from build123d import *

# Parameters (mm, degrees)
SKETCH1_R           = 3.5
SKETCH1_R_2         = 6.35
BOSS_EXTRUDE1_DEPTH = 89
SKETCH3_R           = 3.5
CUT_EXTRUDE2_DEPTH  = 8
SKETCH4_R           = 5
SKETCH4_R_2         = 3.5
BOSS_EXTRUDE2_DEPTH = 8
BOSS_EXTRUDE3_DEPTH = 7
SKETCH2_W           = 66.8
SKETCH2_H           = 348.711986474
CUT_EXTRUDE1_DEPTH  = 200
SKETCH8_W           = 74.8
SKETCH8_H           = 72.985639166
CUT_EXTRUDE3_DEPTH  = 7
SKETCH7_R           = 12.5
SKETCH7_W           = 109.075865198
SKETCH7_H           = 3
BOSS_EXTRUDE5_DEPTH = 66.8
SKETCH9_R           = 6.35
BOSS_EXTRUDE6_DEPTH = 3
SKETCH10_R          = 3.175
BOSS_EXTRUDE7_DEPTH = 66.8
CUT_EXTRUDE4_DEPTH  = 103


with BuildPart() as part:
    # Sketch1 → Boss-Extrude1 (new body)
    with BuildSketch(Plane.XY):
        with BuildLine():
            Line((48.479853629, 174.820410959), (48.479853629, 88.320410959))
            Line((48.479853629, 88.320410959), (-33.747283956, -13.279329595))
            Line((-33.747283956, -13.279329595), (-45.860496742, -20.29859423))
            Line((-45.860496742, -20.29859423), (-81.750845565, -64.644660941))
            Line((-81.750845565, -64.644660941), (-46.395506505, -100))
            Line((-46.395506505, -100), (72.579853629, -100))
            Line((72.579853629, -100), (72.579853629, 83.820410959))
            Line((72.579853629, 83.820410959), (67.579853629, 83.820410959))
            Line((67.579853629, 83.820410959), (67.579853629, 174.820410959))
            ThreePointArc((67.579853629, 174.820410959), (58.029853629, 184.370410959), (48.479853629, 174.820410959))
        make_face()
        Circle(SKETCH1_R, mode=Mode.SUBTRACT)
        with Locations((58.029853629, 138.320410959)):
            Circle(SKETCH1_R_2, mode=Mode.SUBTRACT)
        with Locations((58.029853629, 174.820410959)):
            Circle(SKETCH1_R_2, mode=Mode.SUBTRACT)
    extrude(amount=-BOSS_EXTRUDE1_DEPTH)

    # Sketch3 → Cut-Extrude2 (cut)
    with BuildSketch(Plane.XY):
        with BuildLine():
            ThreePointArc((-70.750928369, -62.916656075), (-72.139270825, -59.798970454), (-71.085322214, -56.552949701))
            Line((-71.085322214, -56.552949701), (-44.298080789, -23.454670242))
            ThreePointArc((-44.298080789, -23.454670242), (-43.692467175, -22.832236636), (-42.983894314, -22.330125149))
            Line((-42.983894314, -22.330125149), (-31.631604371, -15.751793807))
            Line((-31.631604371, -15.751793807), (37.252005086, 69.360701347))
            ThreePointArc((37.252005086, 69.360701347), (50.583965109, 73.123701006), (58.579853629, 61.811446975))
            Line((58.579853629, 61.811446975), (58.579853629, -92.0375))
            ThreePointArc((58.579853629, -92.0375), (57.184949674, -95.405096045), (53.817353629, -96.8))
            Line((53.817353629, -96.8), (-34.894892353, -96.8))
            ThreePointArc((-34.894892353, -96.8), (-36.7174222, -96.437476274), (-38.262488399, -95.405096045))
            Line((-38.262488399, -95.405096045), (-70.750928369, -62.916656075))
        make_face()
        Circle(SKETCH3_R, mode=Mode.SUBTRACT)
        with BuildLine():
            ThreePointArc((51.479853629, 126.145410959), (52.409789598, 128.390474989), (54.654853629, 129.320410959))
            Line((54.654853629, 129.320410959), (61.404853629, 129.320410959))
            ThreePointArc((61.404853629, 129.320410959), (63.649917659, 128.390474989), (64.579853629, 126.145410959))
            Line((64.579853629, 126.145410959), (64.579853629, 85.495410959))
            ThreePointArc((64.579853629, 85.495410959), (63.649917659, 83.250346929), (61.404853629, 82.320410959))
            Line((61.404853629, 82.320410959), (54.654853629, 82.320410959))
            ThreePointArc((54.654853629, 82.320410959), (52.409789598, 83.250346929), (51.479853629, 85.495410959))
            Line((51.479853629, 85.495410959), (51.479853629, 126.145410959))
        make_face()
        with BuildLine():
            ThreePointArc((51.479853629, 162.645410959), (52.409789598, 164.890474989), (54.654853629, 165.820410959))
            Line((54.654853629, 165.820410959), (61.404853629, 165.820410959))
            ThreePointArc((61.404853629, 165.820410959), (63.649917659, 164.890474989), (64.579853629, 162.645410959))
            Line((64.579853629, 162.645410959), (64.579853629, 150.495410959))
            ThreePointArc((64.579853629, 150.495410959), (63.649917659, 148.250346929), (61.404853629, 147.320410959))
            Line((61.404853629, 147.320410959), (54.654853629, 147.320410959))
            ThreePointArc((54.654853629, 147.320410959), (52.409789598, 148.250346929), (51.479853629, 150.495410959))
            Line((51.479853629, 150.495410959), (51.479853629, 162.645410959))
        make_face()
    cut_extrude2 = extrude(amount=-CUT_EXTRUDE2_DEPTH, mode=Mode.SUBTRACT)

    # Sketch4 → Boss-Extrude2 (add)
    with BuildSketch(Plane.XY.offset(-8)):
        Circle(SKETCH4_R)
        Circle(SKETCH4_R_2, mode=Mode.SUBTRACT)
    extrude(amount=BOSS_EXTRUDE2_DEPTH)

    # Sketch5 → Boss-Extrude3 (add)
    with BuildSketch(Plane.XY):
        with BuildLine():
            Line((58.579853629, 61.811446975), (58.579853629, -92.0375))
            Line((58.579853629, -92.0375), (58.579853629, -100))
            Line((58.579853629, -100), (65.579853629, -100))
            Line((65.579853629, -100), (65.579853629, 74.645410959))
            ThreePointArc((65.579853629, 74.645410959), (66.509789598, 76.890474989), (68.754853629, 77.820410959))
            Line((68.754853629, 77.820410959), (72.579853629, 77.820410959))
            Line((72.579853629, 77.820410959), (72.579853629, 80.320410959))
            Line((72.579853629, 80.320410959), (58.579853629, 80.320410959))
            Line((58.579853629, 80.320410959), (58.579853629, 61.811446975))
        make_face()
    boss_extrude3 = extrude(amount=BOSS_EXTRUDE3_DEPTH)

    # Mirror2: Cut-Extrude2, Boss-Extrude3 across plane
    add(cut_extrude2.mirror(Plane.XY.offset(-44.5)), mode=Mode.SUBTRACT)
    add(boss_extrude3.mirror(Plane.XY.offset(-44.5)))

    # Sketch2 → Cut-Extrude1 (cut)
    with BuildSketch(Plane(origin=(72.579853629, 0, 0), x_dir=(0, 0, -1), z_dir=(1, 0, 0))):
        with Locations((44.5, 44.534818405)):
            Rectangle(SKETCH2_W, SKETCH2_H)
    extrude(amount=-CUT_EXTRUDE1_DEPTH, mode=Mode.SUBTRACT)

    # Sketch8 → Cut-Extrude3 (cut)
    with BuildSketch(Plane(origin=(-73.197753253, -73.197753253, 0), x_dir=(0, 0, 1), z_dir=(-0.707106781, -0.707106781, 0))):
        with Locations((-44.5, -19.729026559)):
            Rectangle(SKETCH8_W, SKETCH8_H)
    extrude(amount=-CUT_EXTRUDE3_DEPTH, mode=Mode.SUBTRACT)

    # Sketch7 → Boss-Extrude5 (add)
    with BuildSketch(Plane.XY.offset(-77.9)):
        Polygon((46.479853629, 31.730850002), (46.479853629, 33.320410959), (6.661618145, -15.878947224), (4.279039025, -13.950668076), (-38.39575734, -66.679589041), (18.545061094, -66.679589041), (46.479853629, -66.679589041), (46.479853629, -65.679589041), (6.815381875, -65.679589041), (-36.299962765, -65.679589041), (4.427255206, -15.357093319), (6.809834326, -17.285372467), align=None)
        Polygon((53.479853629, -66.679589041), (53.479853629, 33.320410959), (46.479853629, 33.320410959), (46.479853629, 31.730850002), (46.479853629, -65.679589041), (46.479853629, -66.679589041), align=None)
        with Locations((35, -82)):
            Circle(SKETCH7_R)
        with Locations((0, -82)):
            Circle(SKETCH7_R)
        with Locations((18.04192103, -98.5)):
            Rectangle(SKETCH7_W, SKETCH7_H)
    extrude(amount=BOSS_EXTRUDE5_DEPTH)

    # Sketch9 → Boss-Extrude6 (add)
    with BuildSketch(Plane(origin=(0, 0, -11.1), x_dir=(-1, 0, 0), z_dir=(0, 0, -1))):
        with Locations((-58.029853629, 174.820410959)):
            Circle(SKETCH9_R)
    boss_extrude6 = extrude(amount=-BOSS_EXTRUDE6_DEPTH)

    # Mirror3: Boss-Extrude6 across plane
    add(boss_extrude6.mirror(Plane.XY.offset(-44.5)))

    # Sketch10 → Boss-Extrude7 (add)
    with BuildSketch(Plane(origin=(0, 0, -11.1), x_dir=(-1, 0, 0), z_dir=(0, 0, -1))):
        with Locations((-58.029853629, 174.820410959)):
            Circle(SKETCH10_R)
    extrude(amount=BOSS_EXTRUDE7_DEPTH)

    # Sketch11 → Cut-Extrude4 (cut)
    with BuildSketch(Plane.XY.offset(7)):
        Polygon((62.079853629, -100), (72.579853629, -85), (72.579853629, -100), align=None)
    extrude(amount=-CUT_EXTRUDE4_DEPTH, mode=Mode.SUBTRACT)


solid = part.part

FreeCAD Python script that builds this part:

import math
import FreeCAD as App
import Part
import Sketcher
from FreeCAD import Vector
Q = App.Units.Quantity

doc = App.newDocument("Part")
body = doc.addObject("PartDesign::Body", "Body")
body.AllowCompound = True

# Sketch on XY plane
sketch1 = doc.addObject("Sketcher::SketchObject", "Sketch")
body.addObject(sketch1)
sketch1.AttachmentSupport = (doc.XY_Plane, [""])
sketch1.MapMode = "FlatFace"
sketch1.addGeometry([
    Part.LineSegment(Vector(48.5, 174.8, 0), Vector(48.5, 88.3, 0)),  # 0
    Part.LineSegment(Vector(48.5, 88.3, 0), Vector(-33.7, -13.3, 0)),  # 1
    Part.LineSegment(Vector(-33.7, -13.3, 0), Vector(-45.9, -20.3, 0)),  # 2
    Part.LineSegment(Vector(-45.9, -20.3, 0), Vector(-81.8, -64.6, 0)),  # 3
    Part.LineSegment(Vector(-81.8, -64.6, 0), Vector(-46.4, -100, 0)),  # 4
    Part.LineSegment(Vector(-46.4, -100, 0), Vector(72.6, -100, 0)),  # 5
    Part.LineSegment(Vector(72.6, -100, 0), Vector(72.6, 83.8, 0)),  # 6
    Part.LineSegment(Vector(72.6, 83.8, 0), Vector(67.6, 83.8, 0)),  # 7
    Part.LineSegment(Vector(67.6, 83.8, 0), Vector(67.6, 174.8, 0)),  # 8
    Part.ArcOfCircle(Part.Circle(Vector(58, 174.8, 0), Vector(0, 0, 1), 9.6), math.radians(0), math.radians(180)),  # 9
    Part.Circle(Vector(0, 0, 0), Vector(0, 0, 1), 3.5),  # 10
    Part.Circle(Vector(58, 138.3, 0), Vector(0, 0, 1), 6.3),  # 11
    Part.Circle(Vector(58, 174.8, 0), Vector(0, 0, 1), 6.3),  # 12
], False)
sketch1.addConstraint([
    Sketcher.Constraint("Coincident", 0, 2, 1, 1),
    Sketcher.Constraint("Coincident", 1, 2, 2, 1),
    Sketcher.Constraint("Coincident", 2, 2, 3, 1),
    Sketcher.Constraint("Coincident", 3, 2, 4, 1),
    Sketcher.Constraint("Coincident", 4, 2, 5, 1),
    Sketcher.Constraint("Coincident", 5, 2, 6, 1),
    Sketcher.Constraint("Coincident", 6, 2, 7, 1),
    Sketcher.Constraint("Coincident", 7, 2, 8, 1),
    Sketcher.Constraint("Tangent", 8, 2, 9, 1),
    Sketcher.Constraint("Tangent", 9, 2, 0, 1),
    Sketcher.Constraint("Vertical", 0),
    Sketcher.Constraint("Horizontal", 5),
    Sketcher.Constraint("Vertical", 6),
    Sketcher.Constraint("Horizontal", 7),
    Sketcher.Constraint("Vertical", 8),
    Sketcher.Constraint("Coincident", 10, 3, -1, 1),
    Sketcher.Constraint("Coincident", 12, 3, 9, 3),
    Sketcher.Constraint("Equal", 11, 12),
    Sketcher.Constraint("Parallel", 1, 3),
    Sketcher.Constraint("Vertical", 9, 3, 11, 3),
    Sketcher.Constraint("Diameter", 10, 7.0),
    Sketcher.Constraint("Diameter", 11, 12.7),
    Sketcher.Constraint("DistanceX", 7, 2, 7, 1, 5.0),
    Sketcher.Constraint("DistanceY", 8, 1, 8, 2, 91.0),
    Sketcher.Constraint("Angle", 4, Q("-45 deg")),
    Sketcher.Constraint("Radius", 9, 9.55),
    Sketcher.Constraint("Distance", 2, 14.0),
    Sketcher.Constraint("Distance", 4, 50.0),
    Sketcher.Constraint("DistanceY", 0, 2, 0, 1, 86.5),
    Sketcher.Constraint("DistanceY", 4, 2, -1, 1, 100.0),
    Sketcher.Constraint("DistanceY", 0, 2, 11, 3, 50.0),
    Sketcher.Constraint("DistanceX", 5, 1, 5, 2, 118.97536),
    Sketcher.Constraint("DistanceY", 6, 1, 6, 2, 183.820411),
    Sketcher.Constraint("DistanceY", 1, 2, -1, 1, 13.27933),
    Sketcher.Constraint("DistanceX", 2, 2, 0, 2, 94.34035),
    Sketcher.Constraint("DistanceX", -1, 1, 9, 3, 58.029854),
])
pad1 = doc.addObject("PartDesign::Pad", "Pad")
body.addObject(pad1)
pad1.Profile = sketch1
pad1.Length = 89
pad1.Reversed = True

# Sketch on XY plane
sketch2 = doc.addObject("Sketcher::SketchObject", "Sketch001")
body.addObject(sketch2)
sketch2.AttachmentSupport = (doc.XY_Plane, [""])
sketch2.MapMode = "FlatFace"
sketch2.addGeometry([
    Part.ArcOfCircle(Part.Circle(Vector(-67.4, -59.5, 0), Vector(0, 0, 1), 4.8), math.radians(141), math.radians(225)),  # 0
    Part.LineSegment(Vector(-70.8, -62.9, 0), Vector(-38.3, -95.4, 0)),  # 1
    Part.ArcOfCircle(Part.Circle(Vector(-34.9, -92, 0), Vector(0, 0, 1), 4.8), math.radians(-135), math.radians(-90)),  # 2
    Part.LineSegment(Vector(-34.9, -96.8, 0), Vector(53.8, -96.8, 0)),  # 3
    Part.ArcOfCircle(Part.Circle(Vector(53.8, -92, 0), Vector(0, 0, 1), 4.8), math.radians(-90), math.radians(0)),  # 4
    Part.LineSegment(Vector(58.6, -92, 0), Vector(58.6, 61.8, 0)),  # 5
    Part.ArcOfCircle(Part.Circle(Vector(46.6, 61.8, 0), Vector(0, 0, 1), 12), math.radians(0), math.radians(141)),  # 6
    Part.LineSegment(Vector(37.3, 69.4, 0), Vector(-31.6, -15.8, 0)),  # 7
    Part.LineSegment(Vector(-31.6, -15.8, 0), Vector(-43, -22.3, 0)),  # 8
    Part.ArcOfCircle(Part.Circle(Vector(-40.6, -26.5, 0), Vector(0, 0, 1), 4.8), math.radians(120), math.radians(141)),  # 9
    Part.LineSegment(Vector(-44.3, -23.5, 0), Vector(-71.1, -56.6, 0)),  # 10
    Part.Circle(Vector(0, 0, 0), Vector(0, 0, 1), 3.5),  # 11
    Part.ArcOfCircle(Part.Circle(Vector(54.7, 126.1, 0), Vector(0, 0, 1), 3.2), math.radians(90), math.radians(180)),  # 12
    Part.LineSegment(Vector(51.5, 126.1, 0), Vector(51.5, 85.5, 0)),  # 13
    Part.ArcOfCircle(Part.Circle(Vector(54.7, 85.5, 0), Vector(0, 0, 1), 3.2), math.radians(180), math.radians(270)),  # 14
    Part.LineSegment(Vector(54.7, 82.3, 0), Vector(61.4, 82.3, 0)),  # 15
    Part.ArcOfCircle(Part.Circle(Vector(61.4, 85.5, 0), Vector(0, 0, 1), 3.2), math.radians(-90), math.radians(0)),  # 16
    Part.LineSegment(Vector(64.6, 85.5, 0), Vector(64.6, 126.1, 0)),  # 17
    Part.ArcOfCircle(Part.Circle(Vector(61.4, 126.1, 0), Vector(0, 0, 1), 3.2), math.radians(0), math.radians(90)),  # 18
    Part.LineSegment(Vector(61.4, 129.3, 0), Vector(54.7, 129.3, 0)),  # 19
    Part.ArcOfCircle(Part.Circle(Vector(54.7, 162.6, 0), Vector(0, 0, 1), 3.2), math.radians(90), math.radians(180)),  # 20
    Part.LineSegment(Vector(51.5, 162.6, 0), Vector(51.5, 150.5, 0)),  # 21
    Part.ArcOfCircle(Part.Circle(Vector(54.7, 150.5, 0), Vector(0, 0, 1), 3.2), math.radians(180), math.radians(270)),  # 22
    Part.LineSegment(Vector(54.7, 147.3, 0), Vector(61.4, 147.3, 0)),  # 23
    Part.ArcOfCircle(Part.Circle(Vector(61.4, 150.5, 0), Vector(0, 0, 1), 3.2), math.radians(-90), math.radians(0)),  # 24
    Part.LineSegment(Vector(64.6, 150.5, 0), Vector(64.6, 162.6, 0)),  # 25
    Part.ArcOfCircle(Part.Circle(Vector(61.4, 162.6, 0), Vector(0, 0, 1), 3.2), math.radians(0), math.radians(90)),  # 26
    Part.LineSegment(Vector(61.4, 165.8, 0), Vector(54.7, 165.8, 0)),  # 27
], False)
sketch2.addConstraint([
    Sketcher.Constraint("Tangent", 0, 2, 1, 1),
    Sketcher.Constraint("Tangent", 1, 2, 2, 1),
    Sketcher.Constraint("Tangent", 2, 2, 3, 1),
    Sketcher.Constraint("Tangent", 3, 2, 4, 1),
    Sketcher.Constraint("Tangent", 4, 2, 5, 1),
    Sketcher.Constraint("Tangent", 5, 2, 6, 1),
    Sketcher.Constraint("Tangent", 6, 2, 7, 1),
    Sketcher.Constraint("Coincident", 7, 2, 8, 1),
    Sketcher.Constraint("Tangent", 8, 2, 9, 1),
    Sketcher.Constraint("Tangent", 9, 2, 10, 1),
    Sketcher.Constraint("Tangent", 10, 2, 0, 1),
    Sketcher.Constraint("Tangent", 12, 2, 13, 1),
    Sketcher.Constraint("Tangent", 13, 2, 14, 1),
    Sketcher.Constraint("Tangent", 14, 2, 15, 1),
    Sketcher.Constraint("Tangent", 15, 2, 16, 1),
    Sketcher.Constraint("Tangent", 16, 2, 17, 1),
    Sketcher.Constraint("Tangent", 17, 2, 18, 1),
    Sketcher.Constraint("Tangent", 18, 2, 19, 1),
    Sketcher.Constraint("Tangent", 19, 2, 12, 1),
    Sketcher.Constraint("Tangent", 20, 2, 21, 1),
    Sketcher.Constraint("Tangent", 21, 2, 22, 1),
    Sketcher.Constraint("Tangent", 22, 2, 23, 1),
    Sketcher.Constraint("Tangent", 23, 2, 24, 1),
    Sketcher.Constraint("Tangent", 24, 2, 25, 1),
    Sketcher.Constraint("Tangent", 25, 2, 26, 1),
    Sketcher.Constraint("Tangent", 26, 2, 27, 1),
    Sketcher.Constraint("Tangent", 27, 2, 20, 1),
    Sketcher.Constraint("Horizontal", 3),
    Sketcher.Constraint("Vertical", 5),
    Sketcher.Constraint("Vertical", 13),
    Sketcher.Constraint("Horizontal", 15),
    Sketcher.Constraint("Vertical", 17),
    Sketcher.Constraint("Horizontal", 19),
    Sketcher.Constraint("Vertical", 21),
    Sketcher.Constraint("Horizontal", 23),
    Sketcher.Constraint("Vertical", 25),
    Sketcher.Constraint("Horizontal", 27),
    Sketcher.Constraint("Coincident", 11, 3, -1, 1),
    Sketcher.Constraint("Equal", 0, 2),
    Sketcher.Constraint("Equal", 2, 4),
    Sketcher.Constraint("Equal", 4, 9),
    Sketcher.Constraint("Equal", 12, 14),
    Sketcher.Constraint("Equal", 14, 16),
    Sketcher.Constraint("Equal", 16, 18),
    Sketcher.Constraint("Equal", 18, 20),
    Sketcher.Constraint("Equal", 20, 22),
    Sketcher.Constraint("Equal", 22, 24),
    Sketcher.Constraint("Equal", 24, 26),
    Sketcher.Constraint("Parallel", 7, 10),
    Sketcher.Constraint("Vertical", 14, 3, 20, 3),
    Sketcher.Constraint("Vertical", 18, 3, 24, 3),
    Sketcher.Constraint("Diameter", 11, 7.0),
    Sketcher.Constraint("Radius", 6, 12.0),
    Sketcher.Constraint("Angle", 1, Q("-45 deg")),
    Sketcher.Constraint("Radius", 12, 3.175),
    Sketcher.Constraint("DistanceY", 14, 3, 22, 3, 65.0),
    Sketcher.Constraint("DistanceX", 15, 1, 15, 2, 6.75),
    Sketcher.Constraint("DistanceY", 13, 2, 13, 1, 40.65),
    Sketcher.Constraint("DistanceY", 21, 2, 21, 1, 12.15),
    Sketcher.Constraint("DistanceY", 2, 2, -1, 1, 96.8),
    Sketcher.Constraint("Radius", 0, 4.7625),
    Sketcher.Constraint("DistanceX", 6, 3, 13, 2, 4.9),
    Sketcher.Constraint("DistanceY", -1, 1, 6, 2, 69.360701),
    Sketcher.Constraint("DistanceX", 9, 3, 2, 3, 5.701199),
    Sketcher.Constraint("DistanceX", 3, 1, 3, 2, 88.712246),
    Sketcher.Constraint("DistanceY", 5, 1, 5, 2, 153.848947),
    Sketcher.Constraint("DistanceY", 0, 3, -1, 1, 59.54906),
    Sketcher.Constraint("DistanceX", 9, 3, -1, 1, 40.596091),
    Sketcher.Constraint("DistanceY", -1, 1, 12, 3, 126.145411),
    Sketcher.Constraint("DistanceX", 8, 2, 7, 2, 11.35229),
])
pocket1 = doc.addObject("PartDesign::Pocket", "Pocket")
body.addObject(pocket1)
pocket1.Profile = sketch2
pocket1.Length = 8

# Sketch on XY plane
sketch3 = doc.addObject("Sketcher::SketchObject", "Sketch002")
body.addObject(sketch3)
sketch3.AttachmentSupport = (doc.XY_Plane, [""])
sketch3.MapMode = "FlatFace"
sketch3.AttachmentOffset = App.Placement(Vector(0, 0, -8), App.Rotation())
sketch3.addGeometry([
    Part.Circle(Vector(0, 0, 0), Vector(0, 0, 1), 5),
    Part.Circle(Vector(0, 0, 0), Vector(0, 0, 1), 3.5),
], False)
sketch3.addConstraint([
    Sketcher.Constraint("Coincident", 0, 3, -1, 1),
    Sketcher.Constraint("Coincident", 1, 3, -1, 1),
    Sketcher.Constraint("Diameter", 0, 10.0),
    Sketcher.Constraint("Diameter", 1, 7.0),
])
pad2 = doc.addObject("PartDesign::Pad", "Pad001")
body.addObject(pad2)
pad2.Profile = sketch3
pad2.Length = 8

# Sketch on XY plane
sketch4 = doc.addObject("Sketcher::SketchObject", "Sketch003")
body.addObject(sketch4)
sketch4.AttachmentSupport = (doc.XY_Plane, [""])
sketch4.MapMode = "FlatFace"
sketch4.addGeometry([
    Part.LineSegment(Vector(58.6, -100, 0), Vector(65.6, -100, 0)),  # 0
    Part.LineSegment(Vector(65.6, -100, 0), Vector(65.6, 74.6, 0)),  # 1
    Part.ArcOfCircle(Part.Circle(Vector(68.8, 74.6, 0), Vector(0, 0, 1), 3.2), math.radians(90), math.radians(180)),  # 2
    Part.LineSegment(Vector(68.8, 77.8, 0), Vector(72.6, 77.8, 0)),  # 3
    Part.LineSegment(Vector(72.6, 77.8, 0), Vector(72.6, 80.3, 0)),  # 4
    Part.LineSegment(Vector(72.6, 80.3, 0), Vector(58.6, 80.3, 0)),  # 5
    Part.LineSegment(Vector(58.6, 80.3, 0), Vector(58.6, -100, 0)),  # 6
], False)
sketch4.addConstraint([
    Sketcher.Constraint("Coincident", 0, 2, 1, 1),
    Sketcher.Constraint("Tangent", 1, 2, 2, 2),
    Sketcher.Constraint("Tangent", 2, 1, 3, 1),
    Sketcher.Constraint("Coincident", 3, 2, 4, 1),
    Sketcher.Constraint("Coincident", 4, 2, 5, 1),
    Sketcher.Constraint("Coincident", 5, 2, 6, 1),
    Sketcher.Constraint("Coincident", 6, 2, 0, 1),
    Sketcher.Constraint("Horizontal", 0),
    Sketcher.Constraint("Vertical", 1),
    Sketcher.Constraint("Horizontal", 3),
    Sketcher.Constraint("Vertical", 4),
    Sketcher.Constraint("Horizontal", 5),
    Sketcher.Constraint("Vertical", 6),
    Sketcher.Constraint("DistanceX", 0, 1, 0, 2, 7.0),
    Sketcher.Constraint("DistanceX", 5, 2, 5, 1, 14.0),
    Sketcher.Constraint("DistanceY", 4, 1, 4, 2, 2.5),
    Sketcher.Constraint("DistanceY", 0, 2, -1, 1, 100.0),
    Sketcher.Constraint("Radius", 2, 3.175),
    Sketcher.Constraint("DistanceY", 1, 1, 1, 2, 174.645411),
    Sketcher.Constraint("DistanceX", -1, 1, 2, 3, 68.754854),
])
pad3 = doc.addObject("PartDesign::Pad", "Pad002")
body.addObject(pad3)
pad3.Profile = sketch4
pad3.Length = 7
doc.recompute()

datumplane = doc.addObject("PartDesign::Plane", "DatumPlane")
body.addObject(datumplane)
datumplane.AttachmentSupport = (doc.XY_Plane, [""])
datumplane.MapMode = "FlatFace"
datumplane.AttachmentOffset = App.Placement(Vector(0, 0, -44.5), App.Rotation())
mirrored = doc.addObject("PartDesign::Mirrored", "Mirrored")
body.addObject(mirrored)
mirrored.Originals = [pocket1, pad3]
mirrored.MirrorPlane = (datumplane, [""])
body.Tip = mirrored

# Sketch on YZ plane
sketch5 = doc.addObject("Sketcher::SketchObject", "Sketch004")
body.addObject(sketch5)
sketch5.AttachmentSupport = (doc.YZ_Plane, [""])
sketch5.MapMode = "FlatFace"
sketch5.AttachmentOffset = App.Placement(Vector(0, 0, 72.579854), App.Rotation())
sketch5.addGeometry([
    Part.LineSegment(Vector(219, -11, 0), Vector(-130, -11, 0)),
    Part.LineSegment(Vector(-130, -11, 0), Vector(-130, -78, 0)),
    Part.LineSegment(Vector(-130, -78, 0), Vector(219, -78, 0)),
    Part.LineSegment(Vector(219, -78, 0), Vector(219, -11, 0)),
], False)
sketch5.addConstraint([
    Sketcher.Constraint("Coincident", 0, 2, 1, 1),
    Sketcher.Constraint("Coincident", 1, 2, 2, 1),
    Sketcher.Constraint("Coincident", 2, 2, 3, 1),
    Sketcher.Constraint("Coincident", 3, 2, 0, 1),
    Sketcher.Constraint("Horizontal", 0),
    Sketcher.Constraint("Vertical", 1),
    Sketcher.Constraint("Horizontal", 2),
    Sketcher.Constraint("Vertical", 3),
    Sketcher.Constraint("DistanceY", 1, 2, 1, 1, 66.8),
    Sketcher.Constraint("DistanceY", 0, 2, -1, 1, 11.1),
    Sketcher.Constraint("DistanceX", 0, 2, 0, 1, 348.711986),
    Sketcher.Constraint("DistanceX", -1, 1, 2, 2, 218.890812),
])
pocket2 = doc.addObject("PartDesign::Pocket", "Pocket001")
body.addObject(pocket2)
pocket2.Profile = sketch5
pocket2.Length = 200

# Sketch on an angled plane
sketch6 = doc.addObject("Sketcher::SketchObject", "Sketch005")
body.addObject(sketch6)
sketch6.Placement = App.Placement(Vector(-73.197753, -73.197753, 0), App.Rotation(Vector(0, 0, 1), Vector(-0.707106781, 0.707106781, 0), Vector(-0.707106781, -0.707106781, 0), "ZXY"))
sketch6.addGeometry([
    Part.LineSegment(Vector(-82, 17, 0), Vector(-82, -56, 0)),
    Part.LineSegment(Vector(-82, -56, 0), Vector(-7, -56, 0)),
    Part.LineSegment(Vector(-7, -56, 0), Vector(-7, 17, 0)),
    Part.LineSegment(Vector(-7, 17, 0), Vector(-82, 17, 0)),
], False)
sketch6.addConstraint([
    Sketcher.Constraint("Coincident", 0, 2, 1, 1),
    Sketcher.Constraint("Coincident", 1, 2, 2, 1),
    Sketcher.Constraint("Coincident", 2, 2, 3, 1),
    Sketcher.Constraint("Coincident", 3, 2, 0, 1),
    Sketcher.Constraint("Vertical", 0),
    Sketcher.Constraint("Horizontal", 1),
    Sketcher.Constraint("Vertical", 2),
    Sketcher.Constraint("Horizontal", 3),
    Sketcher.Constraint("DistanceX", 1, 1, 1, 2, 74.8),
    Sketcher.Constraint("DistanceX", 0, 2, -1, 1, 81.9),
    Sketcher.Constraint("DistanceY", 0, 2, 0, 1, 72.985639),
    Sketcher.Constraint("DistanceY", 0, 2, -1, 1, 56.221846),
])
pocket3 = doc.addObject("PartDesign::Pocket", "Pocket002")
body.addObject(pocket3)
pocket3.Profile = sketch6
pocket3.Length = 7

# Sketch on XY plane
sketch7 = doc.addObject("Sketcher::SketchObject", "Sketch006")
body.addObject(sketch7)
sketch7.AttachmentSupport = (doc.XY_Plane, [""])
sketch7.MapMode = "FlatFace"
sketch7.AttachmentOffset = App.Placement(Vector(0, 0, -77.9), App.Rotation())
sketch7.addGeometry([
    Part.LineSegment(Vector(46.5, 33.3, 0), Vector(6.7, -15.9, 0)),  # 0
    Part.LineSegment(Vector(6.7, -15.9, 0), Vector(4.3, -14, 0)),  # 1
    Part.LineSegment(Vector(4.3, -14, 0), Vector(-38.4, -66.7, 0)),  # 2
    Part.LineSegment(Vector(-38.4, -66.7, 0), Vector(53.5, -66.7, 0)),  # 3
    Part.LineSegment(Vector(53.5, -66.7, 0), Vector(53.5, 33.3, 0)),  # 4
    Part.LineSegment(Vector(53.5, 33.3, 0), Vector(46.5, 33.3, 0)),  # 5
    Part.LineSegment(Vector(46.5, -65.7, 0), Vector(-36.3, -65.7, 0)),  # 6
    Part.LineSegment(Vector(-36.3, -65.7, 0), Vector(4.4, -15.4, 0)),  # 7
    Part.LineSegment(Vector(4.4, -15.4, 0), Vector(6.8, -17.3, 0)),  # 8
    Part.LineSegment(Vector(6.8, -17.3, 0), Vector(46.5, 31.7, 0)),  # 9
    Part.LineSegment(Vector(46.5, 31.7, 0), Vector(46.5, -65.7, 0)),  # 10
    Part.Circle(Vector(35, -82, 0), Vector(0, 0, 1), 12.5),  # 11
    Part.Circle(Vector(0, -82, 0), Vector(0, 0, 1), 12.5),  # 12
    Part.LineSegment(Vector(-36.5, -97, 0), Vector(-36.5, -100, 0)),  # 13
    Part.LineSegment(Vector(-36.5, -100, 0), Vector(72.6, -100, 0)),  # 14
    Part.LineSegment(Vector(72.6, -100, 0), Vector(72.6, -97, 0)),  # 15
    Part.LineSegment(Vector(72.6, -97, 0), Vector(-36.5, -97, 0)),  # 16
], False)
sketch7.addConstraint([
    Sketcher.Constraint("Coincident", 0, 2, 1, 1),
    Sketcher.Constraint("Coincident", 1, 2, 2, 1),
    Sketcher.Constraint("Coincident", 2, 2, 3, 1),
    Sketcher.Constraint("Coincident", 3, 2, 4, 1),
    Sketcher.Constraint("Coincident", 4, 2, 5, 1),
    Sketcher.Constraint("Coincident", 5, 2, 0, 1),
    Sketcher.Constraint("Coincident", 6, 2, 7, 1),
    Sketcher.Constraint("Coincident", 7, 2, 8, 1),
    Sketcher.Constraint("Coincident", 8, 2, 9, 1),
    Sketcher.Constraint("Coincident", 9, 2, 10, 1),
    Sketcher.Constraint("Coincident", 10, 2, 6, 1),
    Sketcher.Constraint("Coincident", 13, 2, 14, 1),
    Sketcher.Constraint("Coincident", 14, 2, 15, 1),
    Sketcher.Constraint("Coincident", 15, 2, 16, 1),
    Sketcher.Constraint("Coincident", 16, 2, 13, 1),
    Sketcher.Constraint("Horizontal", 3),
    Sketcher.Constraint("Vertical", 4),
    Sketcher.Constraint("Horizontal", 5),
    Sketcher.Constraint("Horizontal", 6),
    Sketcher.Constraint("Vertical", 10),
    Sketcher.Constraint("Vertical", 13),
    Sketcher.Constraint("Horizontal", 14),
    Sketcher.Constraint("Vertical", 15),
    Sketcher.Constraint("Horizontal", 16),
    Sketcher.Constraint("Equal", 11, 12),
    Sketcher.Constraint("PointOnObject", 12, 3, -2),
    Sketcher.Constraint("Perpendicular", 0, 1),
    Sketcher.Constraint("Perpendicular", 1, 2),
    Sketcher.Constraint("Parallel", 2, 7),
    Sketcher.Constraint("Perpendicular", 7, 8),
    Sketcher.Constraint("Perpendicular", 8, 9),
    Sketcher.Constraint("Horizontal", 11, 3, 12, 3),
    Sketcher.Constraint("Vertical", 5, 2, 9, 2),
    Sketcher.Constraint("Equal", 1, 8),
    Sketcher.Constraint("Diameter", 11, 25.0),
    Sketcher.Constraint("DistanceX", 5, 2, 5, 1, 7.0),
    Sketcher.Constraint("DistanceY", 4, 1, 4, 2, 100.0),
    Sketcher.Constraint("DistanceY", 13, 2, 13, 1, 3.0),
    Sketcher.Constraint("DistanceX", -1, 1, 11, 3, 35.0),
    Sketcher.Constraint("DistanceY", 11, 3, -1, 1, 82.0),
    Sketcher.Constraint("DistanceY", 13, 2, -1, 1, 100.0),
    Sketcher.Constraint("DistanceY", 2, 2, 6, 2, 1.0),
    Sketcher.Constraint("DistanceX", 3, 2, 14, 2, 19.1),
    Sketcher.Constraint("DistanceX", 6, 2, 1, 2, 40.579002),
    Sketcher.Constraint("DistanceX", 3, 1, 3, 2, 91.875611),
    Sketcher.Constraint("DistanceY", 10, 2, 10, 1, 97.410439),
    Sketcher.Constraint("DistanceX", 7, 2, 5, 2, 42.052598),
    Sketcher.Constraint("Distance", 2, 67.83419),
    Sketcher.Constraint("DistanceX", 14, 1, 14, 2, 109.075865),
    Sketcher.Constraint("DistanceX", -1, 1, 0, 2, 6.661618),
    Sketcher.Constraint("DistanceY", 1, 2, -1, 1, 13.950668),
])
pad4 = doc.addObject("PartDesign::Pad", "Pad003")
body.addObject(pad4)
pad4.Profile = sketch7
pad4.Length = 66.8

# Sketch on XY plane
sketch8 = doc.addObject("Sketcher::SketchObject", "Sketch007")
body.addObject(sketch8)
sketch8.AttachmentSupport = (doc.XY_Plane, [""])
sketch8.MapMode = "FlatFace"
sketch8.AttachmentOffset = App.Placement(Vector(0, 0, -11.1), App.Rotation())
sketch8.addGeometry(Part.Circle(Vector(58, 175, 0), Vector(0, 0, 1), 6), False)
sketch8.addConstraint([
    Sketcher.Constraint("Diameter", 0, 12.7),
    Sketcher.Constraint("DistanceY", -1, 1, 0, 3, 174.820411),
    Sketcher.Constraint("DistanceX", -1, 1, 0, 3, 58.029854),
])
pad5 = doc.addObject("PartDesign::Pad", "Pad004")
body.addObject(pad5)
pad5.Profile = sketch8
pad5.Length = 3
doc.recompute()

datumplane2 = doc.addObject("PartDesign::Plane", "DatumPlane001")
body.addObject(datumplane2)
datumplane2.AttachmentSupport = (doc.XY_Plane, [""])
datumplane2.MapMode = "FlatFace"
datumplane2.AttachmentOffset = App.Placement(Vector(0, 0, -44.5), App.Rotation())
mirrored2 = doc.addObject("PartDesign::Mirrored", "Mirrored001")
body.addObject(mirrored2)
mirrored2.Originals = [pad5]
mirrored2.MirrorPlane = (datumplane2, [""])
body.Tip = mirrored2

# Sketch on XY plane
sketch9 = doc.addObject("Sketcher::SketchObject", "Sketch008")
body.addObject(sketch9)
sketch9.AttachmentSupport = (doc.XY_Plane, [""])
sketch9.MapMode = "FlatFace"
sketch9.AttachmentOffset = App.Placement(Vector(0, 0, -11.1), App.Rotation())
sketch9.addGeometry(Part.Circle(Vector(58, 174.8, 0), Vector(0, 0, 1), 3.2), False)
sketch9.addConstraint([
    Sketcher.Constraint("Diameter", 0, 6.35),
    Sketcher.Constraint("DistanceY", -1, 1, 0, 3, 174.820411),
    Sketcher.Constraint("DistanceX", -1, 1, 0, 3, 58.029854),
])
pad6 = doc.addObject("PartDesign::Pad", "Pad005")
body.addObject(pad6)
pad6.Profile = sketch9
pad6.Length = 66.8
pad6.Reversed = True

# Sketch on XY plane
sketch10 = doc.addObject("Sketcher::SketchObject", "Sketch009")
body.addObject(sketch10)
sketch10.AttachmentSupport = (doc.XY_Plane, [""])
sketch10.MapMode = "FlatFace"
sketch10.AttachmentOffset = App.Placement(Vector(0, 0, 7), App.Rotation())
sketch10.addGeometry([
    Part.LineSegment(Vector(73, -85, 0), Vector(62, -100, 0)),
    Part.LineSegment(Vector(62, -100, 0), Vector(73, -100, 0)),
    Part.LineSegment(Vector(73, -100, 0), Vector(73, -85, 0)),
], False)
sketch10.addConstraint([
    Sketcher.Constraint("Coincident", 0, 2, 1, 1),
    Sketcher.Constraint("Coincident", 1, 2, 2, 1),
    Sketcher.Constraint("Coincident", 2, 2, 0, 1),
    Sketcher.Constraint("Horizontal", 1),
    Sketcher.Constraint("Vertical", 2),
    Sketcher.Constraint("DistanceY", 2, 1, 2, 2, 15.0),
    Sketcher.Constraint("DistanceX", 1, 1, 1, 2, 10.5),
    Sketcher.Constraint("DistanceY", 0, 2, -1, 1, 100.0),
    Sketcher.Constraint("DistanceX", -1, 1, 0, 2, 62.079854),
])
pocket4 = doc.addObject("PartDesign::Pocket", "Pocket003")
body.addObject(pocket4)
pocket4.Profile = sketch10
pocket4.Length = 103

doc.recompute()
